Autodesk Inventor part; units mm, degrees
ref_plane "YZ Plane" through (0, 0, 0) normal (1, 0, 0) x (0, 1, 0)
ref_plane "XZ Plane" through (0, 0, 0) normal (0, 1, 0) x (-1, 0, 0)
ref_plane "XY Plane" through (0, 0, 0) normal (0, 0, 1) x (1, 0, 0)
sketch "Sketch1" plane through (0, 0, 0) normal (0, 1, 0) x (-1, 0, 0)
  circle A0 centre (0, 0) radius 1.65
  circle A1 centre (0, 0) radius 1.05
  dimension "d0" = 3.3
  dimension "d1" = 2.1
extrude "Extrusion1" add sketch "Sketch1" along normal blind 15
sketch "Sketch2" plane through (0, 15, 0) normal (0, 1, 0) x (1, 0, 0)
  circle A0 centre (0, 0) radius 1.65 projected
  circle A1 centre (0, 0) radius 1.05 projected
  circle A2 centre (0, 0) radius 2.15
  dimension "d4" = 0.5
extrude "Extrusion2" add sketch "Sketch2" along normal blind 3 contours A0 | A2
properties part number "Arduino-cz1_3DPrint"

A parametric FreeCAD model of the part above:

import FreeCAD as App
import Part
import Sketcher

V = App.Vector
Q = App.Units.Quantity

doc = App.newDocument("Part")
params = doc.addObject("Spreadsheet::Sheet", "Params")
for row, (alias, value) in enumerate([
    ("sketch1_diameter", "3.3 mm"),
    ("sketch1_diameter2", "2.1 mm"),
    ("pad1_length", "15 mm"),
    ("sketch2_diameter", "4.3 mm"),
    ("sketch2_diameter2", "2.1 mm"),
    ("pad2_length", "3 mm"),
], start=1):
    params.set(f"A{row}", alias)
    params.set(f"B{row}", "=" + value)
    params.setAlias(f"B{row}", alias)

body = doc.addObject("PartDesign::Body", "Body")

sketch1 = body.newObject("Sketcher::SketchObject", "Sketch")
sketch1.AttachmentSupport = (doc.getObject("XZ_Plane"), [""])
sketch1.MapMode = "FlatFace"
sketch1.addGeometry(Part.Circle(V(0, 0, 0), V(0, 0, 1), 1.6), False)
sketch1.addGeometry(Part.Circle(V(0, 0, 0), V(0, 0, 1), 1.1), False)
sketch1.addConstraint(Sketcher.Constraint("Coincident", 0, 3, -1, 1))
sketch1.addConstraint(Sketcher.Constraint("Coincident", 1, 3, -1, 1))
sketch1.addConstraint(Sketcher.Constraint("Diameter", 0, Q("3.3 mm")))
sketch1.addConstraint(Sketcher.Constraint("Diameter", 1, Q("2.1 mm")))
sketch1.setExpression("Constraints[2]", "Params.sketch1_diameter")
sketch1.setExpression("Constraints[3]", "Params.sketch1_diameter2")
pad1 = body.newObject("PartDesign::Pad", "Pad")
pad1.Profile = sketch1
pad1.setExpression("Length", "Params.pad1_length")
pad1.Reversed = True

sketch2 = body.newObject("Sketcher::SketchObject", "Sketch001")
sketch2.AttachmentSupport = (doc.getObject("XZ_Plane"), [""])
sketch2.MapMode = "FlatFace"
sketch2.AttachmentOffset = App.Placement(V(0, 0, -15), App.Rotation())
sketch2.addGeometry(Part.Circle(V(0, 0, 0), V(0, 0, 1), 2.1), False)
sketch2.addGeometry(Part.Circle(V(0, 0, 0), V(0, 0, 1), 1.1), False)
sketch2.addConstraint(Sketcher.Constraint("Coincident", 0, 3, -1, 1))
sketch2.addConstraint(Sketcher.Constraint("Coincident", 1, 3, -1, 1))
sketch2.addConstraint(Sketcher.Constraint("Diameter", 0, Q("4.3 mm")))
sketch2.addConstraint(Sketcher.Constraint("Diameter", 1, Q("2.1 mm")))
sketch2.setExpression("Constraints[2]", "Params.sketch2_diameter")
sketch2.setExpression("Constraints[3]", "Params.sketch2_diameter2")
pad2 = body.newObject("PartDesign::Pad", "Pad001")
pad2.Profile = sketch2
pad2.setExpression("Length", "Params.pad2_length")
pad2.Reversed = True

doc.recompute()
